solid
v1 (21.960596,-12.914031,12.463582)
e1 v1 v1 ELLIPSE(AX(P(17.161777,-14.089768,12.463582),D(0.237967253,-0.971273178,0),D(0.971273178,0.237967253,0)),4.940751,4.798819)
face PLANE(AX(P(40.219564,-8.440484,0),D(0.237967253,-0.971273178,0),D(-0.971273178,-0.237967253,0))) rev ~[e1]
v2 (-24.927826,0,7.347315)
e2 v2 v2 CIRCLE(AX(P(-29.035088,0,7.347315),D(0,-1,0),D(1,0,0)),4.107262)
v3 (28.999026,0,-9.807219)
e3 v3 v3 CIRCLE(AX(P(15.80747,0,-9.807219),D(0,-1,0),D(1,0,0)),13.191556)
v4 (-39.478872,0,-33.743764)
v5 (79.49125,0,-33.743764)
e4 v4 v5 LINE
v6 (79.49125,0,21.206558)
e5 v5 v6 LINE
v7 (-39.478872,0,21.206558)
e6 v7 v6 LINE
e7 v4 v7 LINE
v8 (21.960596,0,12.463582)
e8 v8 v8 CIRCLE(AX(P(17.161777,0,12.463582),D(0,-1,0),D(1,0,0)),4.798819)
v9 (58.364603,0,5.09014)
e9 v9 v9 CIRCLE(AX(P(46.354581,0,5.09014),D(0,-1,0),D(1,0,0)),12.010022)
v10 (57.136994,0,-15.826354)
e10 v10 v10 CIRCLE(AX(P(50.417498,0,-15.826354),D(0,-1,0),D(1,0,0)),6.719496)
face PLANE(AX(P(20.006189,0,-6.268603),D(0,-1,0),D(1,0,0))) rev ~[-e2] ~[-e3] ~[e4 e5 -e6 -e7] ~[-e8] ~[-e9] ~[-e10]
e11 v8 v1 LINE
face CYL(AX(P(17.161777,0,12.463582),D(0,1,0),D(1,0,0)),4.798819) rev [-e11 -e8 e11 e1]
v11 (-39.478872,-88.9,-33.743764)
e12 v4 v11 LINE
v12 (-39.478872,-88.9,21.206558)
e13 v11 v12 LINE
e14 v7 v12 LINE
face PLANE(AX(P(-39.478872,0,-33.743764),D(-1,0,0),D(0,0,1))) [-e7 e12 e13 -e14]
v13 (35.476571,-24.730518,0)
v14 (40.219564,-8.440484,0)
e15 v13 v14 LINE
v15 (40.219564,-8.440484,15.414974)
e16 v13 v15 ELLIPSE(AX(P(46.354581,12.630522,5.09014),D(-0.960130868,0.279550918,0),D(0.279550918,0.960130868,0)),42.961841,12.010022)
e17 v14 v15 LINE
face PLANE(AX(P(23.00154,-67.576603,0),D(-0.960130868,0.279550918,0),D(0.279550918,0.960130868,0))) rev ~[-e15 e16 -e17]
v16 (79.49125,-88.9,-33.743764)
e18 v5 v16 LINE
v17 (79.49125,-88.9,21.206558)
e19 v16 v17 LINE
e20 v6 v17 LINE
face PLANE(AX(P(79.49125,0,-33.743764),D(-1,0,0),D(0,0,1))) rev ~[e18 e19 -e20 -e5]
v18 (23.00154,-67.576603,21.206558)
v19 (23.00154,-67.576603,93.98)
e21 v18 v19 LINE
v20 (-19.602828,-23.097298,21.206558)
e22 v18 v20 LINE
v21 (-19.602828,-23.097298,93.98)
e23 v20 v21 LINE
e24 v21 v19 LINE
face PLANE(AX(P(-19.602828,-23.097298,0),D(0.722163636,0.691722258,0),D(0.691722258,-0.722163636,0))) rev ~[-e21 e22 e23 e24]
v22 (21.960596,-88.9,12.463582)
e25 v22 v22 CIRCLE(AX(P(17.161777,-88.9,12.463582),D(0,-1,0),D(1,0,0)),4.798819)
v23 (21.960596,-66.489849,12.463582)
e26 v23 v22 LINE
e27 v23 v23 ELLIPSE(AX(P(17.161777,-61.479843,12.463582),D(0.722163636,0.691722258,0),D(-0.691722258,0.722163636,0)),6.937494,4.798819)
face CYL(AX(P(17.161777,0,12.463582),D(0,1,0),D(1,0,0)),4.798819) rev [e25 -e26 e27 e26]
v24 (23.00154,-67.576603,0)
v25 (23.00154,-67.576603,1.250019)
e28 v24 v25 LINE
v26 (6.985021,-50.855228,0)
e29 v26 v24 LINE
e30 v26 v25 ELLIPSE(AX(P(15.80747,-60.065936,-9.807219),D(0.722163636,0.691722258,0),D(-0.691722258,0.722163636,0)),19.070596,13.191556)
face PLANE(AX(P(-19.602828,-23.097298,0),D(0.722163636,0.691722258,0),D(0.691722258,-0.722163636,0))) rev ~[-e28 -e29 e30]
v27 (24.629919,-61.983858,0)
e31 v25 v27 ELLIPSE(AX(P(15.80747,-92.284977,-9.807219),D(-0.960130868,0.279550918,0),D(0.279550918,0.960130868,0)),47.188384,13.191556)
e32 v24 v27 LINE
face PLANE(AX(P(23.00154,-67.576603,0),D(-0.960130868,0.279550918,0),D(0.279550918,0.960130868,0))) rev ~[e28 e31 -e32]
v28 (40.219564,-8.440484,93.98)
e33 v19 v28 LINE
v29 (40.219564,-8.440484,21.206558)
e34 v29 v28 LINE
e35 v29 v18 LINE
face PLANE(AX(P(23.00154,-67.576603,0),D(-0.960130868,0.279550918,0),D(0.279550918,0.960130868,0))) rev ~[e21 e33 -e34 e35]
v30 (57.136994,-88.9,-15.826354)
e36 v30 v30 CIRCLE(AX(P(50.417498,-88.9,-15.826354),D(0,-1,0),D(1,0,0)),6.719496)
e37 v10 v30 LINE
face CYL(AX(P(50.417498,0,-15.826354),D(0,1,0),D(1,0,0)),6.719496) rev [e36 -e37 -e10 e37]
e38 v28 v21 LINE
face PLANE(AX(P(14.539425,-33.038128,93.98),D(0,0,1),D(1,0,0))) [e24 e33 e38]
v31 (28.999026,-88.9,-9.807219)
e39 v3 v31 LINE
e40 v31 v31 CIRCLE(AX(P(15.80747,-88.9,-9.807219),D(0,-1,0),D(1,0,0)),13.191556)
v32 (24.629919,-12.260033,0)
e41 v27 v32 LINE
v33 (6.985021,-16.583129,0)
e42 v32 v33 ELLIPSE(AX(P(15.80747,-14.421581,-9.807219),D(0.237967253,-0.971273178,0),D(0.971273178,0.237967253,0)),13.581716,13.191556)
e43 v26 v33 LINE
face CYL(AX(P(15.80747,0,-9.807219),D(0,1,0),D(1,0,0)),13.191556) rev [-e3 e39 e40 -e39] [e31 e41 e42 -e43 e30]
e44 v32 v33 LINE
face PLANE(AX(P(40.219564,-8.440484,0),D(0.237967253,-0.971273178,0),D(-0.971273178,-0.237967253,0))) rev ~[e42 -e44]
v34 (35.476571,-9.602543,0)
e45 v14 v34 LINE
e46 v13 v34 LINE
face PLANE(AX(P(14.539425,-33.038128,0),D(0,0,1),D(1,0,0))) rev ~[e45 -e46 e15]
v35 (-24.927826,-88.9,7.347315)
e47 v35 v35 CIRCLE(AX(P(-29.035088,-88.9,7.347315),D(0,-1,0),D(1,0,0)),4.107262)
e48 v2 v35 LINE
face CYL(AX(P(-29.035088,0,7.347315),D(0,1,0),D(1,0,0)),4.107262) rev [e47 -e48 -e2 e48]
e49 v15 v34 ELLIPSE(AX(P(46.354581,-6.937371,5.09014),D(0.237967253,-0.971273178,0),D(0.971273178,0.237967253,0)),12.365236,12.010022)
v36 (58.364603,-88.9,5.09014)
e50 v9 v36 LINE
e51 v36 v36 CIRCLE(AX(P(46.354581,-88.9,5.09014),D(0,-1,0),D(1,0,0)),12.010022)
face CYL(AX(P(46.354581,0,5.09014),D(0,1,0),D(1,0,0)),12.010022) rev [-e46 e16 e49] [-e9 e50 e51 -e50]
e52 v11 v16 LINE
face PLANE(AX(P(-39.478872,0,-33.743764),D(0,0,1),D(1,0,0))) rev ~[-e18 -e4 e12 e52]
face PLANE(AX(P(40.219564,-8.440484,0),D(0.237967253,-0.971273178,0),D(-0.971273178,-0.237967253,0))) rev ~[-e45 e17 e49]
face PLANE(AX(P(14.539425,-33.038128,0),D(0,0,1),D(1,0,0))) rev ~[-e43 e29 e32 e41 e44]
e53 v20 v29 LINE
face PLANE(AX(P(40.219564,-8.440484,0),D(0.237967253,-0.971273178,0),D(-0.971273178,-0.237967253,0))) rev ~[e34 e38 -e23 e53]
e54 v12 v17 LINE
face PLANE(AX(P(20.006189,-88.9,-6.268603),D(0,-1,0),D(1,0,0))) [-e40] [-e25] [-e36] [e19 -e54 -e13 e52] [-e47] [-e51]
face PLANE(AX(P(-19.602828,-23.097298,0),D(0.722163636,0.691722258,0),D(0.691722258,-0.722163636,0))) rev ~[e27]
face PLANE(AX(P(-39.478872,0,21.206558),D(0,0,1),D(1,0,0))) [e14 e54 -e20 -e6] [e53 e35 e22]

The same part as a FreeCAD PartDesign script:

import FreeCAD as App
import Part
import Sketcher
from FreeCAD import Vector
Q = App.Units.Quantity


def add_polygon(sketch, points):
    """Adds a closed chain of lines whose ends are joined by coincident constraints."""
    first, n = sketch.GeometryCount, len(points)
    for a, b in zip(points, points[1:] + points[:1]):
        sketch.addGeometry(Part.LineSegment(App.Vector(*a, 0), App.Vector(*b, 0)), False)
    for i in range(n):
        sketch.addConstraint(Sketcher.Constraint("Coincident", first + i, 2, first + (i + 1) % n, 1))

doc = App.newDocument("Part")
body = doc.addObject("PartDesign::Body", "Body")

# Sketch on XZ plane
sketch1 = body.newObject("Sketcher::SketchObject", "Sketch")
sketch1.AttachmentSupport = (doc.getObject("XZ_Plane"), [""])
sketch1.MapMode = "FlatFace"
add_polygon(sketch1, [(-39.478872, 21.206558), (-39.478872, -33.743764), (79.49125, -33.743764), (79.49125, 21.206558)])  # lines 0-3
sketch1.addGeometry(Part.Circle(Vector(50.417498, -15.826354, 0), Vector(0, 0, 1), 6.719496), False)  # 4
sketch1.addGeometry(Part.Circle(Vector(15.80747, -9.807219, 0), Vector(0, 0, 1), 13.191556), False)  # 5
sketch1.addGeometry(Part.Circle(Vector(-29.035088, 7.347315, 0), Vector(0, 0, 1), 4.107262), False)  # 6
sketch1.addGeometry(Part.Circle(Vector(46.354581, 5.09014, 0), Vector(0, 0, 1), 12.010022), False)  # 7
sketch1.addGeometry(Part.Circle(Vector(17.161777, 12.463582, 0), Vector(0, 0, 1), 4.798819), False)  # 8
sketch1.addConstraint([
    Sketcher.Constraint("Vertical", 0),
    Sketcher.Constraint("Horizontal", 1),
    Sketcher.Constraint("Vertical", 2),
    Sketcher.Constraint("Horizontal", 3),
    Sketcher.Constraint("Diameter", 4, Q("13.438992 mm")),
    Sketcher.Constraint("Diameter", 5, Q("26.383112 mm")),
    Sketcher.Constraint("Diameter", 6, Q("8.214524 mm")),
    Sketcher.Constraint("Diameter", 7, Q("24.020044 mm")),
    Sketcher.Constraint("Diameter", 8, Q("9.597638 mm")),
    Sketcher.Constraint("DistanceX", -1, 1, 4, 3, Q("50.417498 mm")),
    Sketcher.Constraint("DistanceY", 5, 3, 8, 3, Q("22.270801 mm")),
    Sketcher.Constraint("DistanceX", 1, 1, 1, 2, Q("118.970122 mm")),
    Sketcher.Constraint("DistanceY", 0, 2, 0, 1, Q("54.950323 mm")),
    Sketcher.Constraint("DistanceX", -1, 1, 5, 3, Q("15.80747 mm")),
    Sketcher.Constraint("DistanceY", 5, 3, -1, 1, Q("9.807219 mm")),
    Sketcher.Constraint("DistanceX", -1, 1, 7, 3, Q("46.354581 mm")),
    Sketcher.Constraint("DistanceY", -1, 1, 7, 3, Q("5.09014 mm")),
    Sketcher.Constraint("DistanceX", -1, 1, 1, 2, Q("79.49125 mm")),
    Sketcher.Constraint("DistanceY", -1, 1, 2, 2, Q("21.206558 mm")),
    Sketcher.Constraint("DistanceY", 4, 3, 6, 3, Q("23.173669 mm")),
    Sketcher.Constraint("DistanceX", 6, 3, 7, 3, Q("75.389669 mm")),
    Sketcher.Constraint("DistanceX", 8, 3, 4, 3, Q("33.255721 mm")),
    Sketcher.Constraint("DistanceY", 0, 2, 6, 3, Q("41.091079 mm")),
])
pad1 = body.newObject("PartDesign::Pad", "Pad")
pad1.Profile = sketch1
pad1.Length = Q("3.5 in")

# Sketch on XY plane
sketch2 = body.newObject("Sketcher::SketchObject", "Sketch001")
sketch2.AttachmentSupport = (doc.getObject("XY_Plane"), [""])
sketch2.MapMode = "FlatFace"
add_polygon(sketch2, [(23.00154, -67.576603), (40.219564, -8.440484), (-19.602828, -23.097298)])  # lines 0-2
sketch2.addConstraint([
    Sketcher.Constraint("Equal", 0, 1),
    Sketcher.Constraint("Equal", 1, 2),
    Sketcher.Constraint("DistanceX", -1, 1, 2, 2, Q("23.00154 mm")),
    Sketcher.Constraint("DistanceX", 1, 2, 0, 2, Q("59.822392 mm")),
    Sketcher.Constraint("DistanceY", 2, 2, 0, 2, Q("59.136119 mm")),
    Sketcher.Constraint("DistanceY", 0, 2, -1, 1, Q("8.440484 mm")),
])
pad2 = body.newObject("PartDesign::Pad", "Pad001")
pad2.Profile = sketch2
pad2.Length = Q("3.7 in")

doc.recompute()
